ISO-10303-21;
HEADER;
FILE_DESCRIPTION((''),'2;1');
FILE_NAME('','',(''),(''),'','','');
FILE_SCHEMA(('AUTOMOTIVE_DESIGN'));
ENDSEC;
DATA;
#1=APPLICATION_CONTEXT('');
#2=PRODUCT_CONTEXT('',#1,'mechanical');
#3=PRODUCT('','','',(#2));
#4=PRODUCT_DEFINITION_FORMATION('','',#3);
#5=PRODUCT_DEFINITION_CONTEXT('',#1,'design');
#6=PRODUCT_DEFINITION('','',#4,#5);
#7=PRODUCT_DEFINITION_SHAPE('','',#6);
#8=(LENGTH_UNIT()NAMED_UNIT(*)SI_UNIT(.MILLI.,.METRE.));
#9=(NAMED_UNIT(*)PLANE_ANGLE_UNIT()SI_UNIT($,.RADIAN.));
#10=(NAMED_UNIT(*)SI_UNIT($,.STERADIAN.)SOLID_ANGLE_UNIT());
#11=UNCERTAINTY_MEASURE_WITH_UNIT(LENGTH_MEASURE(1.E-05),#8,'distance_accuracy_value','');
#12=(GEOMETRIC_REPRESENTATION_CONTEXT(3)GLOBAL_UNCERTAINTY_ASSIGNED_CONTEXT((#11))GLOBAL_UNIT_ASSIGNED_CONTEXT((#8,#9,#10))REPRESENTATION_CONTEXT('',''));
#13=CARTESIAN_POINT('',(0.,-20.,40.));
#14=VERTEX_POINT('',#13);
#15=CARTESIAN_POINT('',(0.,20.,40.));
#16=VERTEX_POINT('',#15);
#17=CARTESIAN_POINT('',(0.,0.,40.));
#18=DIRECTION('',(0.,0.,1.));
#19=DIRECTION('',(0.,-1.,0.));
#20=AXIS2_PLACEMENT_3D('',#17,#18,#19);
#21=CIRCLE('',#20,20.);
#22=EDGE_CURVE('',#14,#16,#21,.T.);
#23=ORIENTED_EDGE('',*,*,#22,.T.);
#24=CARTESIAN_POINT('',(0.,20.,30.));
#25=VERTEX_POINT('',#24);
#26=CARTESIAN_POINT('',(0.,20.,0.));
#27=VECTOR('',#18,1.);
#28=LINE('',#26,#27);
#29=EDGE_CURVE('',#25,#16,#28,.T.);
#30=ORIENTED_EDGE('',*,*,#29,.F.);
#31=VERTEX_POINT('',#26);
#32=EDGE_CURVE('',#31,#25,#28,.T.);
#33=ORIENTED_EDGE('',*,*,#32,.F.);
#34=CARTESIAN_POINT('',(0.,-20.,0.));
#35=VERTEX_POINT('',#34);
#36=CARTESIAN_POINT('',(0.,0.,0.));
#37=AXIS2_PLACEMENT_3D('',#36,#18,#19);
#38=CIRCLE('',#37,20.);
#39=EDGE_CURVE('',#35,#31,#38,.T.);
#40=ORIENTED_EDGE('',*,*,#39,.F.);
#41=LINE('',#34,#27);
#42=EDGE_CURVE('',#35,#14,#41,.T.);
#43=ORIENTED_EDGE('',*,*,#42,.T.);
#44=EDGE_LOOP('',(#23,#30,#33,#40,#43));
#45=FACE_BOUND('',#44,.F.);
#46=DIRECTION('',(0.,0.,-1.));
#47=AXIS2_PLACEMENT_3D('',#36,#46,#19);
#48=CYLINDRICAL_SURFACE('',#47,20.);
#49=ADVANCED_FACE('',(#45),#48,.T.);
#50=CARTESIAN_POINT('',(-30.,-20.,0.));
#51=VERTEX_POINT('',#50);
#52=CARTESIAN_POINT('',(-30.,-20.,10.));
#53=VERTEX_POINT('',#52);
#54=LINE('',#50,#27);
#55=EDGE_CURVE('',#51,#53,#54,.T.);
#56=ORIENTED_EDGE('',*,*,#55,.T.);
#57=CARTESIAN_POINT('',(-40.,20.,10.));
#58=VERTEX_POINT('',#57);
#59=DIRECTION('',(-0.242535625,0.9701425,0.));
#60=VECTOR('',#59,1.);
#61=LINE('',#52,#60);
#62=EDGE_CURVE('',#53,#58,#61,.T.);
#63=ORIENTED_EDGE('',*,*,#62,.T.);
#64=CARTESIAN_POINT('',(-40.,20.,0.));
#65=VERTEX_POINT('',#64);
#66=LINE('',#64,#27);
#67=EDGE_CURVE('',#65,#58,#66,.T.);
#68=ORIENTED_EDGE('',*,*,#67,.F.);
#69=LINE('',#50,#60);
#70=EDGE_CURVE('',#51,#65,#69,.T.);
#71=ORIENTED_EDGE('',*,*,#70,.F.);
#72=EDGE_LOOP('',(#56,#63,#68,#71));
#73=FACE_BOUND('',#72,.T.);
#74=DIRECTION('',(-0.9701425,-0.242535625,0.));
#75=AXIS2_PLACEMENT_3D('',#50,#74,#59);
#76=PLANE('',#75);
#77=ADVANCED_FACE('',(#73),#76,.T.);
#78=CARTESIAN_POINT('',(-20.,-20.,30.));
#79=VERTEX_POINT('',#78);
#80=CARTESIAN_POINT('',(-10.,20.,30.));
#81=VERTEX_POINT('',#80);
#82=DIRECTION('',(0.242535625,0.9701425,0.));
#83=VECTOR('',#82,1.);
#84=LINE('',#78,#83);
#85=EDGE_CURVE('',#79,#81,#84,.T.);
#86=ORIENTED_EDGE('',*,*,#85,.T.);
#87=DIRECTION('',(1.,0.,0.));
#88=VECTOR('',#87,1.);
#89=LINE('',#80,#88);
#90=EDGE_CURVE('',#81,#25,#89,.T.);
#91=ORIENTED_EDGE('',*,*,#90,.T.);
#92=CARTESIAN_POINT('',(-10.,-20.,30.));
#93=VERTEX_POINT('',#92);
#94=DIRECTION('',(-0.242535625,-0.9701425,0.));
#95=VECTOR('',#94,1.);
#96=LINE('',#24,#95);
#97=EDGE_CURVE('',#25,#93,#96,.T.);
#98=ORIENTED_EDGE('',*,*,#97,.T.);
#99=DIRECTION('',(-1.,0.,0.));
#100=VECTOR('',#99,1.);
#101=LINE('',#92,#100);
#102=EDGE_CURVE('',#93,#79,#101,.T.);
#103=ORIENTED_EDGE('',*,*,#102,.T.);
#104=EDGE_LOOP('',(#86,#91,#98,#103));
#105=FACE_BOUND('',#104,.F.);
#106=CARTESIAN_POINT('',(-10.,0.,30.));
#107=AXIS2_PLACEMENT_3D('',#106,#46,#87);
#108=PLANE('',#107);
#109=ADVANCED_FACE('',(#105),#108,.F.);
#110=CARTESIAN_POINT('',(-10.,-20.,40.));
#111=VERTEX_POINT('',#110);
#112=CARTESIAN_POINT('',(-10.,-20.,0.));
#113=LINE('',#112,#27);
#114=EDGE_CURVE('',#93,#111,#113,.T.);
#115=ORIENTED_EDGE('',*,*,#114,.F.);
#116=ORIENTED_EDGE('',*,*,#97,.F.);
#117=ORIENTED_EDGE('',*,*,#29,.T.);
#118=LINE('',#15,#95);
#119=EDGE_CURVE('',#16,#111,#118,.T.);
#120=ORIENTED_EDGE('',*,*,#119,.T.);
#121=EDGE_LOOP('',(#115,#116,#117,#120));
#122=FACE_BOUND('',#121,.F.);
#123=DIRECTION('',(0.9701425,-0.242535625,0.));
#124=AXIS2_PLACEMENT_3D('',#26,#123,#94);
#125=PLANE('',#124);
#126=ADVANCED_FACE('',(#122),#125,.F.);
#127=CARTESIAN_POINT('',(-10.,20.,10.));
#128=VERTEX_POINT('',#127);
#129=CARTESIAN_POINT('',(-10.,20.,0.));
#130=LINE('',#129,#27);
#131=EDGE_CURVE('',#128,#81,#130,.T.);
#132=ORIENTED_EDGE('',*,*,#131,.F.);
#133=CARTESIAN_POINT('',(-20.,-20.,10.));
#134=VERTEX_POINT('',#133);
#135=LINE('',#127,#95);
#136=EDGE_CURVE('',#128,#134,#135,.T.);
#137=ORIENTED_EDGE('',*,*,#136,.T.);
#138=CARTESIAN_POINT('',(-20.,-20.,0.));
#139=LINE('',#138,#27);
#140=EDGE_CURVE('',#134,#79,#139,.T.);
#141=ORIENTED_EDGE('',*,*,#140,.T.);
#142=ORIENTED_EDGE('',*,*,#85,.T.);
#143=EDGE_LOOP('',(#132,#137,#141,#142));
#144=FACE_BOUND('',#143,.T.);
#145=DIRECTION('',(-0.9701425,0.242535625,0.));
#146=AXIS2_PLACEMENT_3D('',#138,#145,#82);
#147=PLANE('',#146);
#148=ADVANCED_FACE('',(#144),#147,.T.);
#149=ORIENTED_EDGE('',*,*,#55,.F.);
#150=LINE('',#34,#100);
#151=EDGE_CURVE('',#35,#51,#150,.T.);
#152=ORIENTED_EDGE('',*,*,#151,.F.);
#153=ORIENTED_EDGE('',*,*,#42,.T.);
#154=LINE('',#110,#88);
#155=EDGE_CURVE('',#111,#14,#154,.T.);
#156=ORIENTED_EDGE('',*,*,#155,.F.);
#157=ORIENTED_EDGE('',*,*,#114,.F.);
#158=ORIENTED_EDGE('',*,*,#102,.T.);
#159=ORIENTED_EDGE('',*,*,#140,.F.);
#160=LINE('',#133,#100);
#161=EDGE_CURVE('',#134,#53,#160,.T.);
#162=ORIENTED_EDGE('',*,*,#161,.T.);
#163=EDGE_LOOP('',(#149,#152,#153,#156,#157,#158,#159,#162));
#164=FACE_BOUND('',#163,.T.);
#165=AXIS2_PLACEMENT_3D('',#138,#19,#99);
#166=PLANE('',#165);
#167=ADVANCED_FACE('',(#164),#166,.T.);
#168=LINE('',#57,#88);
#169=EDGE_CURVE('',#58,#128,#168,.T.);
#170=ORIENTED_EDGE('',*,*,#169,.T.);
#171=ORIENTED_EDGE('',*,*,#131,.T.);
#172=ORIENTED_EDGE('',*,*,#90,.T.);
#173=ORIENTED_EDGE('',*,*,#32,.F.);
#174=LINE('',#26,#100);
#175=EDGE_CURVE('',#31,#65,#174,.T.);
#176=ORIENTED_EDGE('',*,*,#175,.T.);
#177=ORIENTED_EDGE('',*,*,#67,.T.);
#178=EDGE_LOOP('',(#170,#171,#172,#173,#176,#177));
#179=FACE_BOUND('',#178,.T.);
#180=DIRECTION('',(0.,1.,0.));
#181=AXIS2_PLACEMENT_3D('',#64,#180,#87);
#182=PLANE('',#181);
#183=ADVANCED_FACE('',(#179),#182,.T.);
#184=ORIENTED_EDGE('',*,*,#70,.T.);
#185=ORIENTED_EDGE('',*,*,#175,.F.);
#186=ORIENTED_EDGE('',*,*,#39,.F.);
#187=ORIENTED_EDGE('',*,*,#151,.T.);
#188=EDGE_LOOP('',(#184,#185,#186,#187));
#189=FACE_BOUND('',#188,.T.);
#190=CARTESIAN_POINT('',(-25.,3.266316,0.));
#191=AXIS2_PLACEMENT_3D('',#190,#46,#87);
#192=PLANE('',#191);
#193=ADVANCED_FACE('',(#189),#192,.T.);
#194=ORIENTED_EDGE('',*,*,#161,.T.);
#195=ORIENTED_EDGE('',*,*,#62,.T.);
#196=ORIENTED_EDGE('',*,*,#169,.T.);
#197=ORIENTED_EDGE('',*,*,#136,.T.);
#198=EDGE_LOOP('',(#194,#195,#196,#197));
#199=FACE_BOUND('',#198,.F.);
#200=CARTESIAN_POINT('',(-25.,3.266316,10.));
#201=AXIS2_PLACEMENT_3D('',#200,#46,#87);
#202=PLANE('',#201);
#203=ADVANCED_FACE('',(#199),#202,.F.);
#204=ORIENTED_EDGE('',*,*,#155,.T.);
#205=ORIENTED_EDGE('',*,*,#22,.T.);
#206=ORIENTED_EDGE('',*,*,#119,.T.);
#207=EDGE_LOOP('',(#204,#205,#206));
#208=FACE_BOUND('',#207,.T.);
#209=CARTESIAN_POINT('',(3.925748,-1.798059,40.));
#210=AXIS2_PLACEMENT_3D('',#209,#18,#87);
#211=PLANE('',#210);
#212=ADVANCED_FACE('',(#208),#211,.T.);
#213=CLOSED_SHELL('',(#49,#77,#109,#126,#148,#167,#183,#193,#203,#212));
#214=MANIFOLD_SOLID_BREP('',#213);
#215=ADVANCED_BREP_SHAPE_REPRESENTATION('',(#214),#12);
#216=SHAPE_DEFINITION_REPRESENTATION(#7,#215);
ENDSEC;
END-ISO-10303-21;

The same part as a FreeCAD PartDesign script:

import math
import FreeCAD as App
import Part
import Sketcher
from FreeCAD import Vector

doc = App.newDocument("Part")
body = doc.addObject("PartDesign::Body", "Body")

# Sketch on XY plane
sketch1 = body.newObject("Sketcher::SketchObject", "Sketch")
sketch1.AttachmentSupport = (doc.getObject("XY_Plane"), [""])
sketch1.MapMode = "FlatFace"
sketch1.addGeometry(Part.LineSegment(Vector(-10, -20, 0), Vector(0, -20, 0)), False)
sketch1.addGeometry(Part.ArcOfCircle(Part.Circle(Vector(0, 0, 0), Vector(0, 0, 1), 20), math.radians(-90), math.radians(90)), False)
sketch1.addGeometry(Part.LineSegment(Vector(0, 20, 0), Vector(-10, -20, 0)), False)
sketch1.addConstraint(Sketcher.Constraint("Tangent", 0, 2, 1, 1))
sketch1.addConstraint(Sketcher.Constraint("Coincident", 1, 2, 2, 1))
sketch1.addConstraint(Sketcher.Constraint("Coincident", 2, 2, 0, 1))
sketch1.addConstraint(Sketcher.Constraint("Horizontal", 0))
sketch1.addConstraint(Sketcher.Constraint("Coincident", 1, 3, -1, 1))
sketch1.addConstraint(Sketcher.Constraint("PointOnObject", 1, 2, -2))
sketch1.addConstraint(Sketcher.Constraint("Radius", 1, 20.0))
sketch1.addConstraint(Sketcher.Constraint("DistanceX", 0, 1, 0, 2, 10.0))
pad1 = body.newObject("PartDesign::Pad", "Pad")
pad1.Profile = sketch1
pad1.Length = 40

# Sketch on XY plane
sketch2 = body.newObject("Sketcher::SketchObject", "Sketch001")
sketch2.AttachmentSupport = (doc.getObject("XY_Plane"), [""])
sketch2.MapMode = "FlatFace"
sketch2.addGeometry(Part.LineSegment(Vector(-10, 20, 0), Vector(0, 20, 0)), False)
sketch2.addGeometry(Part.LineSegment(Vector(0, 20, 0), Vector(-10, -20, 0)), False)
sketch2.addGeometry(Part.LineSegment(Vector(-10, -20, 0), Vector(-20, -20, 0)), False)
sketch2.addGeometry(Part.LineSegment(Vector(-20, -20, 0), Vector(-10, 20, 0)), False)
sketch2.addConstraint(Sketcher.Constraint("Coincident", 0, 2, 1, 1))
sketch2.addConstraint(Sketcher.Constraint("Coincident", 1, 2, 2, 1))
sketch2.addConstraint(Sketcher.Constraint("Coincident", 2, 2, 3, 1))
sketch2.addConstraint(Sketcher.Constraint("Coincident", 3, 2, 0, 1))
sketch2.addConstraint(Sketcher.Constraint("Horizontal", 0))
sketch2.addConstraint(Sketcher.Constraint("Horizontal", 2))
sketch2.addConstraint(Sketcher.Constraint("Symmetric", 1, 2, 3, 2, -1))
sketch2.addConstraint(Sketcher.Constraint("PointOnObject", 0, 2, -2))
sketch2.addConstraint(Sketcher.Constraint("Parallel", 1, 3))
sketch2.addConstraint(Sketcher.Constraint("DistanceX", 0, 1, 0, 2, 10.0))
sketch2.addConstraint(Sketcher.Constraint("DistanceY", -1, 1, 0, 2, 20.0))
pad2 = body.newObject("PartDesign::Pad", "Pad001")
pad2.Profile = sketch2
pad2.Length = 30

# Sketch on XY plane
sketch3 = body.newObject("Sketcher::SketchObject", "Sketch002")
sketch3.AttachmentSupport = (doc.getObject("XY_Plane"), [""])
sketch3.MapMode = "FlatFace"
sketch3.addGeometry(Part.LineSegment(Vector(-40, 20, 0), Vector(-10, 20, 0)), False)
sketch3.addGeometry(Part.LineSegment(Vector(-10, 20, 0), Vector(-20, -20, 0)), False)
sketch3.addGeometry(Part.LineSegment(Vector(-20, -20, 0), Vector(-30, -20, 0)), False)
sketch3.addGeometry(Part.LineSegment(Vector(-30, -20, 0), Vector(-40, 20, 0)), False)
sketch3.addConstraint(Sketcher.Constraint("Coincident", 0, 2, 1, 1))
sketch3.addConstraint(Sketcher.Constraint("Coincident", 1, 2, 2, 1))
sketch3.addConstraint(Sketcher.Constraint("Coincident", 2, 2, 3, 1))
sketch3.addConstraint(Sketcher.Constraint("Coincident", 3, 2, 0, 1))
sketch3.addConstraint(Sketcher.Constraint("Horizontal", 0))
sketch3.addConstraint(Sketcher.Constraint("Horizontal", 2))
sketch3.addConstraint(Sketcher.Constraint("Equal", 1, 3))
sketch3.addConstraint(Sketcher.Constraint("DistanceX", 0, 1, 0, 2, 30.0))
sketch3.addConstraint(Sketcher.Constraint("DistanceX", 2, 2, 2, 1, 10.0))
sketch3.addConstraint(Sketcher.Constraint("DistanceX", 0, 2, -1, 1, 10.0))
sketch3.addConstraint(Sketcher.Constraint("DistanceY", -1, 1, 0, 2, 20.0))
sketch3.addConstraint(Sketcher.Constraint("DistanceY", 1, 2, -1, 1, 20.0))
pad3 = body.newObject("PartDesign::Pad", "Pad002")
pad3.Profile = sketch3
pad3.Length = 10

doc.recompute()
